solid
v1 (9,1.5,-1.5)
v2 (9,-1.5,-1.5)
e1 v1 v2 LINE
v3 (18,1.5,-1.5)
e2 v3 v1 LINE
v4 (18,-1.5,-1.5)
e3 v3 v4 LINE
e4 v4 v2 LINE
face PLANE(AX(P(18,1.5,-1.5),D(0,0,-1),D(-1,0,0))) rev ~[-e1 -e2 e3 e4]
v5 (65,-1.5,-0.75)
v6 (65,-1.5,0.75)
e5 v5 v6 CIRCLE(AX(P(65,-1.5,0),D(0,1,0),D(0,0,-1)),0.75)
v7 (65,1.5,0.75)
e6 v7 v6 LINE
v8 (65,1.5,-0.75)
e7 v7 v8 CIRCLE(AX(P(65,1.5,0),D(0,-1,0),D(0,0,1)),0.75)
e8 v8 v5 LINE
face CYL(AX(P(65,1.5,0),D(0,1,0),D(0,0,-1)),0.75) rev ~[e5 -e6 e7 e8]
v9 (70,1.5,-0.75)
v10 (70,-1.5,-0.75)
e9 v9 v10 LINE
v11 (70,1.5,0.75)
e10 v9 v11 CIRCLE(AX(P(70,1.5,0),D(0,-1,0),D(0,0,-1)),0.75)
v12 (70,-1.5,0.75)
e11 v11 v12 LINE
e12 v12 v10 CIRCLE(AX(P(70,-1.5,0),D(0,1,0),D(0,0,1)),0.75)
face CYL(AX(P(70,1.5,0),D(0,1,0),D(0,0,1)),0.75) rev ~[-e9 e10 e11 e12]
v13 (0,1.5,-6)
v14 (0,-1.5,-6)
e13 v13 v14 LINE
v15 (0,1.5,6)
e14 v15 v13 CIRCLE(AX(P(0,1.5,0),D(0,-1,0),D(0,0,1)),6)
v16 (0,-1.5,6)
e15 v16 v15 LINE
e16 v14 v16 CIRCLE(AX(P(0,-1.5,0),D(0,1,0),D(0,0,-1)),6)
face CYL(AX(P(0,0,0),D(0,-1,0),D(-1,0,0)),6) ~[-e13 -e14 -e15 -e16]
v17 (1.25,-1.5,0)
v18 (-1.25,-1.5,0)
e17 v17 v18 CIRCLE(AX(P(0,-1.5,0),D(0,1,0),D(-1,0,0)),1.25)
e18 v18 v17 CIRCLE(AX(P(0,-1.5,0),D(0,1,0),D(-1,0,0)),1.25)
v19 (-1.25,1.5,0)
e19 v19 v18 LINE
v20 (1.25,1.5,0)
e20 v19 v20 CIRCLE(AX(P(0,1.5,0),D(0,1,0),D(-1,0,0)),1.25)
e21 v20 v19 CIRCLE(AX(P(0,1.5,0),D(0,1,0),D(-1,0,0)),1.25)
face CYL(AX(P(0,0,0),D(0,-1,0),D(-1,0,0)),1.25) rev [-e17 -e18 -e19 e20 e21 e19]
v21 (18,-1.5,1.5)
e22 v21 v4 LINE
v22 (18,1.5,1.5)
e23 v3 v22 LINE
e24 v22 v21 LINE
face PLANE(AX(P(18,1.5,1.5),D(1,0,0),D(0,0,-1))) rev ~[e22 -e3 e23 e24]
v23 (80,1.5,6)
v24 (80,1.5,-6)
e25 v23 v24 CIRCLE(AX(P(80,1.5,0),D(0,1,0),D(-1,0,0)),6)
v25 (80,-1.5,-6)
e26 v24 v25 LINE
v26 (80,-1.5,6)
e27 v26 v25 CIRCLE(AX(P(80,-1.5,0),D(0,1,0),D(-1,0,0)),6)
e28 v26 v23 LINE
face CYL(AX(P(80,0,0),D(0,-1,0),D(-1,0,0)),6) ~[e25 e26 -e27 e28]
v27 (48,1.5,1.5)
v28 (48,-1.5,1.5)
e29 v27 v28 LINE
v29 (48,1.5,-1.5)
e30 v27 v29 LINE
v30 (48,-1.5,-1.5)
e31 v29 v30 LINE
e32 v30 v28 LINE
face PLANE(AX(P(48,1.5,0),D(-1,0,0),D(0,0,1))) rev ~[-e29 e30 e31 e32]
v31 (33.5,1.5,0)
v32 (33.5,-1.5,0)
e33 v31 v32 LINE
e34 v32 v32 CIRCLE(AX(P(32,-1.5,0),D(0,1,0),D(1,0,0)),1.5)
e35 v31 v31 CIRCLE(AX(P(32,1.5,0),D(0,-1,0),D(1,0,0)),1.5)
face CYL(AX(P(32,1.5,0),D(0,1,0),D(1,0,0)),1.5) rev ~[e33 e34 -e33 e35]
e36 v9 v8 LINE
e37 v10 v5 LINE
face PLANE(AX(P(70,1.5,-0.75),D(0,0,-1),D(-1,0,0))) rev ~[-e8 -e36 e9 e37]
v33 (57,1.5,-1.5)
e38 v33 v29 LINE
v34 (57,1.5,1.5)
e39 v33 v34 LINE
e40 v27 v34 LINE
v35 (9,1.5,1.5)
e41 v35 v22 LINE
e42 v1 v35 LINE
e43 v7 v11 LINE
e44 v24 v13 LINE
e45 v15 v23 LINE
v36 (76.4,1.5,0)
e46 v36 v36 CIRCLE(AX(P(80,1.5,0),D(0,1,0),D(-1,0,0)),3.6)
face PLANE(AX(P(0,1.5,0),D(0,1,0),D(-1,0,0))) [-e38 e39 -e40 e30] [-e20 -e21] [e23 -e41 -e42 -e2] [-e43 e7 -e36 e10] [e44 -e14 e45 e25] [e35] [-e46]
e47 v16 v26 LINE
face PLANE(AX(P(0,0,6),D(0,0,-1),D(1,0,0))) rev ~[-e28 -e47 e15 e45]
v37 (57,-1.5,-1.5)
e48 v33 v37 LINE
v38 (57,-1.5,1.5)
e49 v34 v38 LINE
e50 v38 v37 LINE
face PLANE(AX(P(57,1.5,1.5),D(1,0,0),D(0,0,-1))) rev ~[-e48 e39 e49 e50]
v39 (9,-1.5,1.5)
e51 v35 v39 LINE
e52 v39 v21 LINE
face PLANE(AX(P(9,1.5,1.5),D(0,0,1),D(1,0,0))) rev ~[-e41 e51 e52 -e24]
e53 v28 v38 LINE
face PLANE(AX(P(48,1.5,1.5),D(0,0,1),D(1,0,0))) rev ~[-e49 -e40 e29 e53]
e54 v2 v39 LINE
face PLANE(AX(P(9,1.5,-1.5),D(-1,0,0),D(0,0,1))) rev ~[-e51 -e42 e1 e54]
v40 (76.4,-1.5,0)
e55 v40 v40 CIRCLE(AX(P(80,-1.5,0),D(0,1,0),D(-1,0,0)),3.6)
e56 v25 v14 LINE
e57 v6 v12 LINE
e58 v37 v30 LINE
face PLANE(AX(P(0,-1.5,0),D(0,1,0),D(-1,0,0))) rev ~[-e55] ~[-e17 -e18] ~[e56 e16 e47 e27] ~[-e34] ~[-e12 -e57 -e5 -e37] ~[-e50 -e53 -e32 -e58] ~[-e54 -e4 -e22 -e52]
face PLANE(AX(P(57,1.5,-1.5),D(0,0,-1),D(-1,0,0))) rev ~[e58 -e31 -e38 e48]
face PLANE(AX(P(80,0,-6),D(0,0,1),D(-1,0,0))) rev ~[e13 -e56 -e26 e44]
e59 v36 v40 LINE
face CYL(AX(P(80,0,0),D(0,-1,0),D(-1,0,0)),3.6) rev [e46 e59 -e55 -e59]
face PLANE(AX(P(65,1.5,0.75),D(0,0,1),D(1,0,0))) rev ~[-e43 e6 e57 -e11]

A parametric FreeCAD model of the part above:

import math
import FreeCAD as App
import Part
import Sketcher

V = App.Vector


def add_polygon(sketch, points):
    """Adds a closed chain of lines whose ends are joined by coincident constraints."""
    first, n = sketch.GeometryCount, len(points)
    for a, b in zip(points, points[1:] + points[:1]):
        sketch.addGeometry(Part.LineSegment(App.Vector(*a, 0), App.Vector(*b, 0)), False)
    for i in range(n):
        sketch.addConstraint(Sketcher.Constraint("Coincident", first + i, 2, first + (i + 1) % n, 1))

doc = App.newDocument("Part")
body = doc.addObject("PartDesign::Body", "Body")

sketch1 = doc.addObject("Sketcher::SketchObject", "Sketch")
body.addObject(sketch1)
sketch1.AttachmentSupport = (doc.XZ_Plane, [""])
sketch1.MapMode = "FlatFace"
sketch1.addGeometry(Part.LineSegment(V(0, 6, 0), V(80, 6, 0)), False)
sketch1.addGeometry(Part.ArcOfCircle(Part.Circle(V(80, 0, 0), V(0, 0, 1), 6), math.radians(-90), math.radians(90)), False)
sketch1.addGeometry(Part.LineSegment(V(80, -6, 0), V(0, -6, 0)), False)
sketch1.addGeometry(Part.ArcOfCircle(Part.Circle(V(0, 0, 0), V(0, 0, 1), 6), math.radians(90), math.radians(270)), False)
sketch1.addGeometry(Part.Circle(V(0, 0, 0), V(0, 0, 1), 1.25), False)
sketch1.addGeometry(Part.Circle(V(80, 0, 0), V(0, 0, 1), 3.6), False)
sketch1.addConstraint(Sketcher.Constraint("Tangent", 0, 2, 1, 2))
sketch1.addConstraint(Sketcher.Constraint("Tangent", 1, 1, 2, 1))
sketch1.addConstraint(Sketcher.Constraint("Tangent", 2, 2, 3, 2))
sketch1.addConstraint(Sketcher.Constraint("Tangent", 3, 1, 0, 1))
sketch1.addConstraint(Sketcher.Constraint("Horizontal", 0))
sketch1.addConstraint(Sketcher.Constraint("Horizontal", 2))
sketch1.addConstraint(Sketcher.Constraint("Coincident", 3, 3, -1, 1))
sketch1.addConstraint(Sketcher.Constraint("Coincident", 4, 3, -1, 1))
sketch1.addConstraint(Sketcher.Constraint("Coincident", 5, 3, 1, 3))
sketch1.addConstraint(Sketcher.Constraint("Radius", 1, 6.0))
sketch1.addConstraint(Sketcher.Constraint("Diameter", 4, 2.5))
sketch1.addConstraint(Sketcher.Constraint("Diameter", 5, 7.2))
sketch1.addConstraint(Sketcher.Constraint("DistanceX", 0, 1, 0, 2, 80.0))
pad1 = doc.addObject("PartDesign::Pad", "Pad")
body.addObject(pad1)
pad1.Profile = sketch1
pad1.Length = 3
pad1.Midplane = True

sketch2 = doc.addObject("Sketcher::SketchObject", "Sketch001")
body.addObject(sketch2)
sketch2.AttachmentSupport = (doc.XZ_Plane, [""])
sketch2.MapMode = "FlatFace"
sketch2.AttachmentOffset = App.Placement(V(0, 0, -1.5), App.Rotation())
add_polygon(sketch2, [(18, 1.5), (18, -1.5), (9, -1.5), (9, 1.5)])
sketch2.addGeometry(Part.Circle(V(32, 0, 0), V(0, 0, 1), 1.5), False)
add_polygon(sketch2, [(57, 1.5), (57, -1.5), (48, -1.5), (48, 1.5)])
sketch2.addGeometry(Part.ArcOfCircle(Part.Circle(V(70, 0, 0), V(0, 0, 1), 0.75), math.radians(-90), math.radians(90)), False)
sketch2.addGeometry(Part.LineSegment(V(70, -0.75, 0), V(65, -0.75, 0)), False)
sketch2.addGeometry(Part.ArcOfCircle(Part.Circle(V(65, 0, 0), V(0, 0, 1), 0.75), math.radians(90), math.radians(270)), False)
sketch2.addGeometry(Part.LineSegment(V(65, 0.75, 0), V(70, 0.75, 0)), False)
sketch2.addConstraint(Sketcher.Constraint("Tangent", 9, 1, 10, 1))
sketch2.addConstraint(Sketcher.Constraint("Tangent", 10, 2, 11, 2))
sketch2.addConstraint(Sketcher.Constraint("Tangent", 11, 1, 12, 1))
sketch2.addConstraint(Sketcher.Constraint("Tangent", 12, 2, 9, 2))
sketch2.addConstraint(Sketcher.Constraint("Vertical", 0))
sketch2.addConstraint(Sketcher.Constraint("Horizontal", 1))
sketch2.addConstraint(Sketcher.Constraint("Vertical", 2))
sketch2.addConstraint(Sketcher.Constraint("Horizontal", 3))
sketch2.addConstraint(Sketcher.Constraint("Vertical", 5))
sketch2.addConstraint(Sketcher.Constraint("Horizontal", 6))
sketch2.addConstraint(Sketcher.Constraint("Vertical", 7))
sketch2.addConstraint(Sketcher.Constraint("Horizontal", 8))
sketch2.addConstraint(Sketcher.Constraint("Horizontal", 10))
sketch2.addConstraint(Sketcher.Constraint("Horizontal", 12))
sketch2.addConstraint(Sketcher.Constraint("PointOnObject", 4, 3, -1))
sketch2.addConstraint(Sketcher.Constraint("PointOnObject", 9, 3, -1))
sketch2.addConstraint(Sketcher.Constraint("Horizontal", 1, 2, 5, 2))
sketch2.addConstraint(Sketcher.Constraint("Horizontal", 3, 2, 7, 2))
sketch2.addConstraint(Sketcher.Constraint("Equal", 3, 6))
sketch2.addConstraint(Sketcher.Constraint("Diameter", 4, 3.0))
sketch2.addConstraint(Sketcher.Constraint("DistanceX", 1, 2, 1, 1, 9.0))
sketch2.addConstraint(Sketcher.Constraint("DistanceX", 10, 2, 10, 1, 5.0))
sketch2.addConstraint(Sketcher.Constraint("DistanceY", 0, 2, 0, 1, 3.0))
sketch2.addConstraint(Sketcher.Constraint("Radius", 9, 0.75))
sketch2.addConstraint(Sketcher.Constraint("DistanceX", -1, 1, 1, 2, 9.0))
sketch2.addConstraint(Sketcher.Constraint("DistanceX", 0, 2, 4, 3, 14.0))
sketch2.addConstraint(Sketcher.Constraint("DistanceX", 5, 2, 11, 3, 8.0))
sketch2.addConstraint(Sketcher.Constraint("DistanceX", 4, 3, 6, 2, 16.0))
sketch2.addConstraint(Sketcher.Constraint("DistanceY", 0, 2, -1, 1, 1.5))
pocket1 = doc.addObject("PartDesign::Pocket", "Pocket")
body.addObject(pocket1)
pocket1.Profile = sketch2
pocket1.Length = 10
pocket1.Reversed = True

doc.recompute()
